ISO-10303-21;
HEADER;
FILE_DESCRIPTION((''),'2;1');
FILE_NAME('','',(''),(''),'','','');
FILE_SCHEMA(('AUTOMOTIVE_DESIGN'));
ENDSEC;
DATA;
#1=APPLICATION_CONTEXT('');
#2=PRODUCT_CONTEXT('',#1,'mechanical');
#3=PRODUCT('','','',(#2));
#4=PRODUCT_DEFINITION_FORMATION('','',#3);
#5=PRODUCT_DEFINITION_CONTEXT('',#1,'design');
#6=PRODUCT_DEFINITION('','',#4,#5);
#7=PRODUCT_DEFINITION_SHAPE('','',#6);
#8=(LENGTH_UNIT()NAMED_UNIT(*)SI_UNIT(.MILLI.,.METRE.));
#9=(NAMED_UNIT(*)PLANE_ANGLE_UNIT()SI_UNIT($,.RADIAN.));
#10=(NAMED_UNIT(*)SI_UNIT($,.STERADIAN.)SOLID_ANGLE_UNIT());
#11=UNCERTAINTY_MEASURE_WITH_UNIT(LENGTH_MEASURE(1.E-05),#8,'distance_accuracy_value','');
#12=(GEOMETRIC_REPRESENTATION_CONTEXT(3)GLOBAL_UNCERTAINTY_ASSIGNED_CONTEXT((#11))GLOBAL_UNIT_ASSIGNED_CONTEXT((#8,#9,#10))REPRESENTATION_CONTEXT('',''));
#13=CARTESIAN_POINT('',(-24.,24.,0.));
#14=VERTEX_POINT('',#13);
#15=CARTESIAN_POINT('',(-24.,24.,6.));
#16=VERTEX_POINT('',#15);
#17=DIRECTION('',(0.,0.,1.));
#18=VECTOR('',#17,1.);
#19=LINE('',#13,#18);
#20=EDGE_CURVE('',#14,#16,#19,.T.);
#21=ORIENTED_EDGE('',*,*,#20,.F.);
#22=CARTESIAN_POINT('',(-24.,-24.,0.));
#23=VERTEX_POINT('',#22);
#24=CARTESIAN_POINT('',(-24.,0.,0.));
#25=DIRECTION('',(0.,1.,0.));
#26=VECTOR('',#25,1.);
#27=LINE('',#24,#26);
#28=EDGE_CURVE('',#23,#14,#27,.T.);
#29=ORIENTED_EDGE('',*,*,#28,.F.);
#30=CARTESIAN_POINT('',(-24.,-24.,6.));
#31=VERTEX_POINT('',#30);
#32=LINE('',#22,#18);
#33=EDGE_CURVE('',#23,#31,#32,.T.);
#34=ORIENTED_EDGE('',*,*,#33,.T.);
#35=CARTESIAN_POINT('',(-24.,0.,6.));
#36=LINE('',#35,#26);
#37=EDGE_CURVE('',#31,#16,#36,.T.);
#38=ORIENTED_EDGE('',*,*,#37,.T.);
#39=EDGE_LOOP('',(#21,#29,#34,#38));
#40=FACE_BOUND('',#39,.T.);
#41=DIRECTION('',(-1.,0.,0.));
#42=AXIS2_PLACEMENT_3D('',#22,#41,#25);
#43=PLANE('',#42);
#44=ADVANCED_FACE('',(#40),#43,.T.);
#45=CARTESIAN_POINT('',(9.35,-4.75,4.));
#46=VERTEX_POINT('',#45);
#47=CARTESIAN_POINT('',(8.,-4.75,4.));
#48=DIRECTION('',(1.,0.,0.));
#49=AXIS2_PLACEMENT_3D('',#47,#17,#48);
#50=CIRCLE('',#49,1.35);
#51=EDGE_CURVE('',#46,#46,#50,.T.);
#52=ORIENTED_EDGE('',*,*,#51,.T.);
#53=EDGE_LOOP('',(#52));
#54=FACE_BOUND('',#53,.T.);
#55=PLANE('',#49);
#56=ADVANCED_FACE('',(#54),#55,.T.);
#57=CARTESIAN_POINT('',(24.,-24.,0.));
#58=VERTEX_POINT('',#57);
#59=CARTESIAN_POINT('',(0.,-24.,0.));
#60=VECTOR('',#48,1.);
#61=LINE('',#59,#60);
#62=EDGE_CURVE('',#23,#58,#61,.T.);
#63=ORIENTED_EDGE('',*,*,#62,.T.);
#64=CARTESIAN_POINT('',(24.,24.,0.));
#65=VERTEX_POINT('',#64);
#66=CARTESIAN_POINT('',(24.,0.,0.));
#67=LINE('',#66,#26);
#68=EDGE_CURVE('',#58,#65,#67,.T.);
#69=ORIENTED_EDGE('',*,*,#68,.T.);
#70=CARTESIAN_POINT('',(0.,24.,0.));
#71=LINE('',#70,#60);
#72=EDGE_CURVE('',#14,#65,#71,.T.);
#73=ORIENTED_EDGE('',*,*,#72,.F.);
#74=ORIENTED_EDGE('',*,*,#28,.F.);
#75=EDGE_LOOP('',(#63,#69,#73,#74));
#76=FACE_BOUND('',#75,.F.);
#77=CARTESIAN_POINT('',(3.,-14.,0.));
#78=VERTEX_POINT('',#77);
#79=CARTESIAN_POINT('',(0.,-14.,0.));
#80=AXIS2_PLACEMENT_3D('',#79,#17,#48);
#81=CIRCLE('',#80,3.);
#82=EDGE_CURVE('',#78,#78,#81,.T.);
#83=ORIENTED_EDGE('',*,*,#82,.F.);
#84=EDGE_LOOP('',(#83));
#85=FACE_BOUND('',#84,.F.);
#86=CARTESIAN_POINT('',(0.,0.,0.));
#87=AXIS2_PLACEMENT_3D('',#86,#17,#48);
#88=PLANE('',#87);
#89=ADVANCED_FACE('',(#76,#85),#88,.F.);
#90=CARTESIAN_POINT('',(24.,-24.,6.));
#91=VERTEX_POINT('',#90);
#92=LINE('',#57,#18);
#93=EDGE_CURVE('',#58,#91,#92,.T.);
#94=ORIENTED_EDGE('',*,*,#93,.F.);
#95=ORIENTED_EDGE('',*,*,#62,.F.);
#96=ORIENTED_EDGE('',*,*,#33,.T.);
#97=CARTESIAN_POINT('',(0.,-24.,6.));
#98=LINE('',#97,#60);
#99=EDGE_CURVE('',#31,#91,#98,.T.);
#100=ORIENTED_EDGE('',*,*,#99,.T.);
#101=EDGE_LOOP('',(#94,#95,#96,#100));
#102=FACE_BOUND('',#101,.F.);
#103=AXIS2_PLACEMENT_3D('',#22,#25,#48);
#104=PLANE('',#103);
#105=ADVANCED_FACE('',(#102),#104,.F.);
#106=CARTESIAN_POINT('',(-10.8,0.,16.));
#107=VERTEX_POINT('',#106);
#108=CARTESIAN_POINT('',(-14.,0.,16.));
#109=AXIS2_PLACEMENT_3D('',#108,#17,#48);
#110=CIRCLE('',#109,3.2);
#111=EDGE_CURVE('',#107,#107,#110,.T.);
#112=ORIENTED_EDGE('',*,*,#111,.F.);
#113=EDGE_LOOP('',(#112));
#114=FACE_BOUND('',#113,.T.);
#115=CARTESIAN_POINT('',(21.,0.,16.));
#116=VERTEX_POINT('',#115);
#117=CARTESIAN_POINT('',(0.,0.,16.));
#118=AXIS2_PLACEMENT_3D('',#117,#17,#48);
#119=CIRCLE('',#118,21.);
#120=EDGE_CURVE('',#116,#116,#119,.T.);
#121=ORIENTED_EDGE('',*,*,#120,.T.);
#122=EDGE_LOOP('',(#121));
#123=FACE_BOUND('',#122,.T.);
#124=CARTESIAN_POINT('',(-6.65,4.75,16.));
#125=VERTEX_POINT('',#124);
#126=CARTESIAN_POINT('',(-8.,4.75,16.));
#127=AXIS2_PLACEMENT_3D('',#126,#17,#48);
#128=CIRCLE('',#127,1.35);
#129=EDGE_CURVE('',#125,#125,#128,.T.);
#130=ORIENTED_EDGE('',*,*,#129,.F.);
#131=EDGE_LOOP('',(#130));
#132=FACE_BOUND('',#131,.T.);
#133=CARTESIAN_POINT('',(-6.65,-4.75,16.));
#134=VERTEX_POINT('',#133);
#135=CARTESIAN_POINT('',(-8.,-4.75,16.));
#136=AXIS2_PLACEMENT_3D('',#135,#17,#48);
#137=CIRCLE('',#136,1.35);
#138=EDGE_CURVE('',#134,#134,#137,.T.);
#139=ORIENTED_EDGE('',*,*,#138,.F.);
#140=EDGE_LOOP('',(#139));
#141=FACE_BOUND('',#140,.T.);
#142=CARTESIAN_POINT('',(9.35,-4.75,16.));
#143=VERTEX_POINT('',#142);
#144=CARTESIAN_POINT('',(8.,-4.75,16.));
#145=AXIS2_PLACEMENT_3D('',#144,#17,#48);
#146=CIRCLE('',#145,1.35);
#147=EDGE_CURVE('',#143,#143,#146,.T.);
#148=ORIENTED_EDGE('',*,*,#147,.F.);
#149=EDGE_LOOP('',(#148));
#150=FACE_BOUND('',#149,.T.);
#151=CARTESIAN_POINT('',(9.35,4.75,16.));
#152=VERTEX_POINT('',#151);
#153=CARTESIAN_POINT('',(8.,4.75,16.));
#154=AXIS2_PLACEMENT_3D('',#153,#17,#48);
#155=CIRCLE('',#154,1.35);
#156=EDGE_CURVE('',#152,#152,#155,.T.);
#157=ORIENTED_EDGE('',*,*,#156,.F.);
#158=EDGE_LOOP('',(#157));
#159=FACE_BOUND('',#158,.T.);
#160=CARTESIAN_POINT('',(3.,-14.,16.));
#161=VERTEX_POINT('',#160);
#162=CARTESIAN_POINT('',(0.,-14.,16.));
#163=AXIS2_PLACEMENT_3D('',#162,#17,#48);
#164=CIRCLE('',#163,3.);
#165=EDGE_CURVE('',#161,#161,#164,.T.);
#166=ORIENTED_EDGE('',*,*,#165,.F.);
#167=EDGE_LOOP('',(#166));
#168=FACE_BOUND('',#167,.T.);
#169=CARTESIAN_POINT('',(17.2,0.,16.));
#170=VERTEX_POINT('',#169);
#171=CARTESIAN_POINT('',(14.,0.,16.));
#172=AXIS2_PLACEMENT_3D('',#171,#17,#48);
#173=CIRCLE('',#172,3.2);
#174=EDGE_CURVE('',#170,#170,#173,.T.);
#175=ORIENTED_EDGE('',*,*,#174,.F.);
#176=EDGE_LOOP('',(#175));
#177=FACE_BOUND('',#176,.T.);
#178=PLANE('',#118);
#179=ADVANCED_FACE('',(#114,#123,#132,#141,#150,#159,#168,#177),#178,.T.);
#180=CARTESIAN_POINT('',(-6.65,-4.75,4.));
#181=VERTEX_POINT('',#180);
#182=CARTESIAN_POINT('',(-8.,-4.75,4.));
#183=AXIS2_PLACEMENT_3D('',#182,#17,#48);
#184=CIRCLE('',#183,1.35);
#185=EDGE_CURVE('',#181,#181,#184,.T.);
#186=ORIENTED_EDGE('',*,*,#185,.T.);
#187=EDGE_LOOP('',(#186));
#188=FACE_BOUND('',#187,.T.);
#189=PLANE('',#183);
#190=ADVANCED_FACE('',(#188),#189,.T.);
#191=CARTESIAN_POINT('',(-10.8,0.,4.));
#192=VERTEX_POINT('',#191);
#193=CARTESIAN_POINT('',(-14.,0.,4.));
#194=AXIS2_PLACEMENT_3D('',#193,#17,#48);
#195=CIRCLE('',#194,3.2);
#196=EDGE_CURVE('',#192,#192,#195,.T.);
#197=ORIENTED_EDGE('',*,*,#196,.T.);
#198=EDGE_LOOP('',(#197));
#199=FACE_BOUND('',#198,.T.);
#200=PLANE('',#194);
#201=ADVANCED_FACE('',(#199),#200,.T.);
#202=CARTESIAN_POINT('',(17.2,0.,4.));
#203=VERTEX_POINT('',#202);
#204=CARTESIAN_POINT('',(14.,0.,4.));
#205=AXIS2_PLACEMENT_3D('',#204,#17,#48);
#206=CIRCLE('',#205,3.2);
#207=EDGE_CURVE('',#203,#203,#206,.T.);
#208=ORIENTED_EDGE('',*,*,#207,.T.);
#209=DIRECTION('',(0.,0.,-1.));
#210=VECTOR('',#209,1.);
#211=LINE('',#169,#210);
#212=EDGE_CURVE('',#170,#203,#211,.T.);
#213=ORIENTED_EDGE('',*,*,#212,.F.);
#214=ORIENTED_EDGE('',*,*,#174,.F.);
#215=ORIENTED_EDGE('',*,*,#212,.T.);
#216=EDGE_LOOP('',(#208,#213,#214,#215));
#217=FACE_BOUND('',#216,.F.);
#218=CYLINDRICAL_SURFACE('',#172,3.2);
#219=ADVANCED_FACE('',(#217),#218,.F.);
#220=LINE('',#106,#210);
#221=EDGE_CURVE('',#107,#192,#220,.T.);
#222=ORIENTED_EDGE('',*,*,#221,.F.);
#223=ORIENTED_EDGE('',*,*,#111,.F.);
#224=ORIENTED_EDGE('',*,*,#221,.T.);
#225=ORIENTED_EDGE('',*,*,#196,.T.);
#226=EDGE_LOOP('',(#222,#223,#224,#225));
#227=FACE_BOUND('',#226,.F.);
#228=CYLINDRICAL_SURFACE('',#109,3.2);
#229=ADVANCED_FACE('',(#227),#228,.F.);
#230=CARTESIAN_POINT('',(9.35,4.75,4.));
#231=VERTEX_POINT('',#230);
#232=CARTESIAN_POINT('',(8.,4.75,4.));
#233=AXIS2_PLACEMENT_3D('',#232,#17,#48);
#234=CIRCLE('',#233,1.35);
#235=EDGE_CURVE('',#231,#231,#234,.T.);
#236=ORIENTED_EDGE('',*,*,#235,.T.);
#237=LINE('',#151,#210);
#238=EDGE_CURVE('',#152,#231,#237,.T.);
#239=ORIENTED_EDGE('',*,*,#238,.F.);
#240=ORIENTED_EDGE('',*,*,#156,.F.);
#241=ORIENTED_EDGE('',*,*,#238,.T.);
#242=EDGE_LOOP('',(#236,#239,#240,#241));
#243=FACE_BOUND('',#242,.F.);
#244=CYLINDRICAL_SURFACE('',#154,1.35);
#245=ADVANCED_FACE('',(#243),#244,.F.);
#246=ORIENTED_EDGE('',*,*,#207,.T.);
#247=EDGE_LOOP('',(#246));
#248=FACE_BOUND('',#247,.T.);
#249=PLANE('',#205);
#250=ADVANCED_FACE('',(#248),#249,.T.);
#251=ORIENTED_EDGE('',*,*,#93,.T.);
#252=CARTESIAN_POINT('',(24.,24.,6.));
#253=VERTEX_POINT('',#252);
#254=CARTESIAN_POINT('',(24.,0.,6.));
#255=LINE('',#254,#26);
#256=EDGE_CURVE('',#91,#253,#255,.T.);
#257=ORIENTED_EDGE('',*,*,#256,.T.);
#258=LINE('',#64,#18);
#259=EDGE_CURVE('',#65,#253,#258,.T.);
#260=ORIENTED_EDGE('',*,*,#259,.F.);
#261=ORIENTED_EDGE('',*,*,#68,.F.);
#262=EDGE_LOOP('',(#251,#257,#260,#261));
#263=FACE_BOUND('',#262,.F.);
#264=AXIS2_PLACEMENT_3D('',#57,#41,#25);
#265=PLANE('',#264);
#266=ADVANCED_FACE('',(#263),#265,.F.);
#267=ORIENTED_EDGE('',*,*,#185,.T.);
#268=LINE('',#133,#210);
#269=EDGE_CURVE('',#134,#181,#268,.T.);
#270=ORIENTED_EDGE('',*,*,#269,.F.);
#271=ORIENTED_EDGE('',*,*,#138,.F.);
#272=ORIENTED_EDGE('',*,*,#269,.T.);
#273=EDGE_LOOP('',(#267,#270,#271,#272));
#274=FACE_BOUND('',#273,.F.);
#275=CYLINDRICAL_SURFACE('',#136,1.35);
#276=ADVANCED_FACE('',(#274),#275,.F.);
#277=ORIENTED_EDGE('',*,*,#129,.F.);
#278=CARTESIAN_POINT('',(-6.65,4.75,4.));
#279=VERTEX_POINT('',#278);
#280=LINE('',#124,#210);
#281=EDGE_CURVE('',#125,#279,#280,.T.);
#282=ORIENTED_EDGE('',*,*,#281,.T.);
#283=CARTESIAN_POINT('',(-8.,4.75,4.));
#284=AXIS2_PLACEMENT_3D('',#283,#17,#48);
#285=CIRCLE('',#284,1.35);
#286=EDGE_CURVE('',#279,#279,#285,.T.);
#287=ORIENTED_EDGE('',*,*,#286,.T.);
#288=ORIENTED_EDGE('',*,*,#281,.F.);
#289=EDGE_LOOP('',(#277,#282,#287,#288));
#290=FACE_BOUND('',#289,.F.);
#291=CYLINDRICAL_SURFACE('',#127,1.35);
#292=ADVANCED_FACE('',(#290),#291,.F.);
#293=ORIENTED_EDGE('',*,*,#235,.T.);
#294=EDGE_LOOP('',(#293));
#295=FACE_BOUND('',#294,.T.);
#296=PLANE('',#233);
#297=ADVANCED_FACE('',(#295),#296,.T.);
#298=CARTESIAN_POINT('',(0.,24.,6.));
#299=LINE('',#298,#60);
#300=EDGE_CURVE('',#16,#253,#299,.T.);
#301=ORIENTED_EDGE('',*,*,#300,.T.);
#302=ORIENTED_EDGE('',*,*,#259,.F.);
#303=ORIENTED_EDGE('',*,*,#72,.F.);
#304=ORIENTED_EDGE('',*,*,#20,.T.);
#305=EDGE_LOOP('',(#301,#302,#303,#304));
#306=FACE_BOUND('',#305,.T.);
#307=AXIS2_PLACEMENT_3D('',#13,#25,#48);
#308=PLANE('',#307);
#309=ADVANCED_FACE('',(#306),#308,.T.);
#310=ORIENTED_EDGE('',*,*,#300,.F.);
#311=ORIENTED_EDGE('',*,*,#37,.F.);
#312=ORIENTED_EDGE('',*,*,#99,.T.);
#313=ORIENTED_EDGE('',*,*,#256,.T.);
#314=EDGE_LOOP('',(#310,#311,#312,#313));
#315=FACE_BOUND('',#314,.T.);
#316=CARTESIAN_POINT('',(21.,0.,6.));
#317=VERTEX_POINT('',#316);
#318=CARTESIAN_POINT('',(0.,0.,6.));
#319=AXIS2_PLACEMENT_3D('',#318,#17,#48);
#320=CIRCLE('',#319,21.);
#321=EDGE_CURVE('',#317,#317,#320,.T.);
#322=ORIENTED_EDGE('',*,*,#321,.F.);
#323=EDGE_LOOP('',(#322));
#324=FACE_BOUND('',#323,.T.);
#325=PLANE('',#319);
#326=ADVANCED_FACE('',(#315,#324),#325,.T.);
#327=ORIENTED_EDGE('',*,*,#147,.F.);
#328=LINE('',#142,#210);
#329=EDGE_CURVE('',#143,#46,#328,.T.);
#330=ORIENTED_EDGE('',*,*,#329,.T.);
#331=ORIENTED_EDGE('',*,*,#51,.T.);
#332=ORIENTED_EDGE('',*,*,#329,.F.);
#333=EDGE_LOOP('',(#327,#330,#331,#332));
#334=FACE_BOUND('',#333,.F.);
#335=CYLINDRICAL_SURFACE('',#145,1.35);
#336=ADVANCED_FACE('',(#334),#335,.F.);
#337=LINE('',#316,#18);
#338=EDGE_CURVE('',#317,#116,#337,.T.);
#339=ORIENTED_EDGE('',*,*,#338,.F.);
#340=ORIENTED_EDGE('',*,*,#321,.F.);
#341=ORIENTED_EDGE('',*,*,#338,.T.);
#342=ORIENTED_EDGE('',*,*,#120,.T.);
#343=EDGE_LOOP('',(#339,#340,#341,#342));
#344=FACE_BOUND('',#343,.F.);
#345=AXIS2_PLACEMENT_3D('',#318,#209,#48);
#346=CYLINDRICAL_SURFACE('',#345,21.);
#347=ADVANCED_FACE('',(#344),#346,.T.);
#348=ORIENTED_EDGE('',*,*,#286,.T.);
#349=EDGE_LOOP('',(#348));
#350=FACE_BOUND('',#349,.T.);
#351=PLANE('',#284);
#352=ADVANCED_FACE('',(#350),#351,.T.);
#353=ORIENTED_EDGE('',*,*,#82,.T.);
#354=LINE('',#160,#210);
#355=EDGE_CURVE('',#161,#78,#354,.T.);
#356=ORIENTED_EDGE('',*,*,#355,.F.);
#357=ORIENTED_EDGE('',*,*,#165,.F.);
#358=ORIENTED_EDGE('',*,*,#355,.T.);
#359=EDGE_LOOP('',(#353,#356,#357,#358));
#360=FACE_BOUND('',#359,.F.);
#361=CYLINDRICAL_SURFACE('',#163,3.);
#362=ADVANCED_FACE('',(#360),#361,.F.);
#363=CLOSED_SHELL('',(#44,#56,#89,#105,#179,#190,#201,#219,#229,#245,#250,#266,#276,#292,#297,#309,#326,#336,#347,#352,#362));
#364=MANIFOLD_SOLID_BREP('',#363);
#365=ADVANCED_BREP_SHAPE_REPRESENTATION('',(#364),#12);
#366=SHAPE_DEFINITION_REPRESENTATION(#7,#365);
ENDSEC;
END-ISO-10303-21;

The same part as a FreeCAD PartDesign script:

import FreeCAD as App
import Part
import Sketcher


def add_polygon(sketch, points):
    """Adds a closed chain of lines whose ends are joined by coincident constraints."""
    first, n = sketch.GeometryCount, len(points)
    for a, b in zip(points, points[1:] + points[:1]):
        sketch.addGeometry(Part.LineSegment(App.Vector(*a, 0), App.Vector(*b, 0)), False)
    for i in range(n):
        sketch.addConstraint(Sketcher.Constraint("Coincident", first + i, 2, first + (i + 1) % n, 1))

doc = App.newDocument("Part")
body = doc.addObject("PartDesign::Body", "Body")

# Sketch on XY plane
sketch1 = body.newObject("Sketcher::SketchObject", "Sketch")
sketch1.AttachmentSupport = (doc.getObject("XY_Plane"), [""])
sketch1.MapMode = "FlatFace"
add_polygon(sketch1, [(-24, 24), (-24, -24), (24, -24), (24, 24)])  # lines 0-3
sketch1.addConstraint([
    Sketcher.Constraint("Vertical", 0),
    Sketcher.Constraint("Horizontal", 1),
    Sketcher.Constraint("Vertical", 2),
    Sketcher.Constraint("Horizontal", 3),
    Sketcher.Constraint("Symmetric", 0, 2, 2, 2, -1, 1),
    Sketcher.Constraint("Equal", 3, 0),
    Sketcher.Constraint("DistanceX", 1, 1, 1, 2, 48.0),
])
pad1 = body.newObject("PartDesign::Pad", "Pad")
pad1.Profile = sketch1
pad1.Length = 6

# Sketch on XY plane
sketch2 = body.newObject("Sketcher::SketchObject", "Sketch001")
sketch2.AttachmentSupport = (doc.getObject("XY_Plane"), [""])
sketch2.MapMode = "FlatFace"
sketch2.AttachmentOffset = App.Placement(App.Vector(0, 0, 6), App.Rotation())
sketch2.addGeometry(Part.Circle(App.Vector(0, 0, 0), App.Vector(0, 0, 1), 21), False)
sketch2.addConstraint([
    Sketcher.Constraint("Coincident", 0, 3, -1, 1),
    Sketcher.Constraint("Diameter", 0, 42.0),
])
pad2 = body.newObject("PartDesign::Pad", "Pad001")
pad2.Profile = sketch2
pad2.Length = 10

# Sketch on XY plane
sketch3 = body.newObject("Sketcher::SketchObject", "Sketch002")
sketch3.AttachmentSupport = (doc.getObject("XY_Plane"), [""])
sketch3.MapMode = "FlatFace"
sketch3.AttachmentOffset = App.Placement(App.Vector(0, 0, 16), App.Rotation())
sketch3.addGeometry([
    Part.Circle(App.Vector(-14, 0, 0), App.Vector(0, 0, 1), 3.2),  # 0
    Part.Circle(App.Vector(14, 0, 0), App.Vector(0, 0, 1), 3.2),  # 1
    Part.Circle(App.Vector(-8, 4.75, 0), App.Vector(0, 0, 1), 1.35),  # 2
    Part.Circle(App.Vector(8, 4.75, 0), App.Vector(0, 0, 1), 1.35),  # 3
    Part.Circle(App.Vector(-8, -4.75, 0), App.Vector(0, 0, 1), 1.35),  # 4
    Part.Circle(App.Vector(8, -4.75, 0), App.Vector(0, 0, 1), 1.35),  # 5
], False)
sketch3.addConstraint([
    Sketcher.Constraint("Equal", 0, 1),
    Sketcher.Constraint("Equal", 2, 3),
    Sketcher.Constraint("Equal", 3, 4),
    Sketcher.Constraint("Equal", 4, 5),
    Sketcher.Constraint("Symmetric", 0, 3, 1, 3, -1, 1),
    Sketcher.Constraint("Symmetric", 3, 3, 4, 3, -1, 1),
    Sketcher.Constraint("Symmetric", 2, 3, 5, 3, -1, 1),
    Sketcher.Constraint("Symmetric", 2, 3, 3, 3, -2),
    Sketcher.Constraint("PointOnObject", 0, 3, -1),
    Sketcher.Constraint("Diameter", 0, 6.4),
    Sketcher.Constraint("Diameter", 2, 2.7),
    Sketcher.Constraint("DistanceX", 0, 3, -1, 1, 14.0),
    Sketcher.Constraint("DistanceX", 2, 3, -1, 1, 8.0),
    Sketcher.Constraint("DistanceY", 4, 3, 2, 3, 9.5),
])
pocket1 = body.newObject("PartDesign::Pocket", "Pocket")
pocket1.Profile = sketch3
pocket1.Length = 12

# Sketch on XY plane
sketch4 = body.newObject("Sketcher::SketchObject", "Sketch003")
sketch4.AttachmentSupport = (doc.getObject("XY_Plane"), [""])
sketch4.MapMode = "FlatFace"
sketch4.AttachmentOffset = App.Placement(App.Vector(0, 0, 16), App.Rotation())
sketch4.addGeometry(Part.Circle(App.Vector(0, -14, 0), App.Vector(0, 0, 1), 3), False)
sketch4.addConstraint([
    Sketcher.Constraint("PointOnObject", 0, 3, -2),
    Sketcher.Constraint("Diameter", 0, 6.0),
    Sketcher.Constraint("DistanceY", 0, 3, -1, 1, 14.0),
])
pocket2 = body.newObject("PartDesign::Pocket", "Pocket001")
pocket2.Profile = sketch4
pocket2.Type = "ThroughAll"

doc.recompute()
